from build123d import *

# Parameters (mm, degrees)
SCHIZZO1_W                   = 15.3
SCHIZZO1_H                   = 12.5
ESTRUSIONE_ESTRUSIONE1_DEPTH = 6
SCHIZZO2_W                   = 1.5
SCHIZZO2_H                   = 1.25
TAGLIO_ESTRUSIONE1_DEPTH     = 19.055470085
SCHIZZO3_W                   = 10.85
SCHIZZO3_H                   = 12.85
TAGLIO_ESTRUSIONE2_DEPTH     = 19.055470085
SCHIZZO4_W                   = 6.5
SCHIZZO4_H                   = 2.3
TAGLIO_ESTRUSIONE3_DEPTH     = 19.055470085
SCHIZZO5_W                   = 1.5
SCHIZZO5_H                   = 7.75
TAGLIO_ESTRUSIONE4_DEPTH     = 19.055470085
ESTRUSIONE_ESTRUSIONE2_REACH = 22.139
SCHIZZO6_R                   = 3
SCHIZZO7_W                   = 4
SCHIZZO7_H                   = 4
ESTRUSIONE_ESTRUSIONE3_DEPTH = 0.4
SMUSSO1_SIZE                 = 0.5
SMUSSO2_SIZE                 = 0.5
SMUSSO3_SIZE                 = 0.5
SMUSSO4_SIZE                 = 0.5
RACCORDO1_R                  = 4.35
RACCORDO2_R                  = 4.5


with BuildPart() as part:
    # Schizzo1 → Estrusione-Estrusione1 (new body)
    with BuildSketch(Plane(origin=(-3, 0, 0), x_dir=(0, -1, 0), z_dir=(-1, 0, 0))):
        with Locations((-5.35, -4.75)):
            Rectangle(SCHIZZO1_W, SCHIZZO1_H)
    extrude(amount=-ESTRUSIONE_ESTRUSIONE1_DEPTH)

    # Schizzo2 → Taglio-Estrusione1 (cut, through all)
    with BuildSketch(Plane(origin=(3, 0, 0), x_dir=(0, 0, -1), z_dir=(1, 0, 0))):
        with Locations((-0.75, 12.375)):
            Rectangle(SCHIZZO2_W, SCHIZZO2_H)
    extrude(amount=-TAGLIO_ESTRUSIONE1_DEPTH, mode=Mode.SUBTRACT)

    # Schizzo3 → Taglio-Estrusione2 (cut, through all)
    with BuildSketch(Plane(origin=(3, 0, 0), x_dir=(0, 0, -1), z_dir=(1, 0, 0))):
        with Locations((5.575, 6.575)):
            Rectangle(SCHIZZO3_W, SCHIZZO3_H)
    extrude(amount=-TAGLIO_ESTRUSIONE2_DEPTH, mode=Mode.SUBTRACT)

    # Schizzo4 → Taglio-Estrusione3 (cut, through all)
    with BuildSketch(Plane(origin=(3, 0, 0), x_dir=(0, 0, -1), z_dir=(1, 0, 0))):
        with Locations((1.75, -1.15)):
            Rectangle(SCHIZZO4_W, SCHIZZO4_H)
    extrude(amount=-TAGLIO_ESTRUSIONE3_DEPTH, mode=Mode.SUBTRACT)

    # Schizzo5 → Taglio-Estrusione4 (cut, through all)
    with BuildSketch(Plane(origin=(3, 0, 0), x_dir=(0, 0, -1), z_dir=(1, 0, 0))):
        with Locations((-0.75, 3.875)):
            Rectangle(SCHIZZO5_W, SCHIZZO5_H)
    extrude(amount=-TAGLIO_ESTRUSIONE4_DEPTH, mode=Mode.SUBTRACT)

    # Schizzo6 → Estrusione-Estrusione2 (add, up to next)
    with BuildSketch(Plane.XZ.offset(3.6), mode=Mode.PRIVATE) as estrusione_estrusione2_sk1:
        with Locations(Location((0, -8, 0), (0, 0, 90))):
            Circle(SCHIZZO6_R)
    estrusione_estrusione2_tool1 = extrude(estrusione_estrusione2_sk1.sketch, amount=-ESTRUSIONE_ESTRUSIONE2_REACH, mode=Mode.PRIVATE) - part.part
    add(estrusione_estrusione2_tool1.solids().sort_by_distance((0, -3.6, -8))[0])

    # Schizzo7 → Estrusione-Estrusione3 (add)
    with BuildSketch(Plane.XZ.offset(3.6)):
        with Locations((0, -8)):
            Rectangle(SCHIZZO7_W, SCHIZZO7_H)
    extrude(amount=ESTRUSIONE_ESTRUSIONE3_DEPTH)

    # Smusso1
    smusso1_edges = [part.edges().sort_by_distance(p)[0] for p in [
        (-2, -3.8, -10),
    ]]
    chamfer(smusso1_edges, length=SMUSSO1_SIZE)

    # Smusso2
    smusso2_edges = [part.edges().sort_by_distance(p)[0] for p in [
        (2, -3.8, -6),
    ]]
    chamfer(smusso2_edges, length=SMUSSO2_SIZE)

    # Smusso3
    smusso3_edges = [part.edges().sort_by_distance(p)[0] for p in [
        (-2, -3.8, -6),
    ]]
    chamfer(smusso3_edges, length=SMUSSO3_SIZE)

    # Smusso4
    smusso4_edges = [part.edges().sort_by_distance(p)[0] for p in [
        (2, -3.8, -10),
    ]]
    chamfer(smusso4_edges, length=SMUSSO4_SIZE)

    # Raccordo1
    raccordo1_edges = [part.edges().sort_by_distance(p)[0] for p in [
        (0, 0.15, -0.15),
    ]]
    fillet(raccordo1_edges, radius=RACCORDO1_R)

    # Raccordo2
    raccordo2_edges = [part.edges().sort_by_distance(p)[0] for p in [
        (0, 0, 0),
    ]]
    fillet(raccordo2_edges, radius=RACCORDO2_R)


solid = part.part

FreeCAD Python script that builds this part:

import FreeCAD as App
import Part
import Sketcher

V = App.Vector


def edges_at(feature, points):
    """Names of the edges that pass closest to the given points."""
    edges = feature.Shape.Edges
    near = lambda p: min(range(len(edges)), key=lambda i: edges[i].distToShape(Part.Vertex(*p))[0])
    return sorted({f"Edge{near(p) + 1}" for p in points})


def add_polygon(sketch, points):
    """Adds a closed chain of lines whose ends are joined by coincident constraints."""
    first, n = sketch.GeometryCount, len(points)
    for a, b in zip(points, points[1:] + points[:1]):
        sketch.addGeometry(Part.LineSegment(App.Vector(*a, 0), App.Vector(*b, 0)), False)
    for i in range(n):
        sketch.addConstraint(Sketcher.Constraint("Coincident", first + i, 2, first + (i + 1) % n, 1))

doc = App.newDocument("Part")
params = doc.addObject("Spreadsheet::Sheet", "Params")
for row, (alias, value) in enumerate([
    ("sketch1_width", "15.3 mm"),
    ("sketch1_height", "12.5 mm"),
    ("pad1_length", "6 mm"),
    ("sketch2_height", "1.5 mm"),
    ("sketch2_width", "1.25 mm"),
    ("sketch3_width", "12.85 mm"),
    ("sketch3_height", "10.85 mm"),
    ("sketch4_width", "2.3 mm"),
    ("sketch4_height", "6.5 mm"),
    ("sketch5_height", "1.5 mm"),
    ("sketch5_width", "7.75 mm"),
    ("sketch6_diameter", "6 mm"),
    ("sketch7_width", "4 mm"),
    ("pad3_length", "0.4 mm"),
    ("chamfer_size", "0.5 mm"),
    ("chamfer2_size", "0.5 mm"),
    ("chamfer3_size", "0.5 mm"),
    ("chamfer4_size", "0.5 mm"),
    ("fillet_radius", "4.35 mm"),
    ("fillet2_radius", "4.5 mm"),
], start=1):
    params.set(f"A{row}", alias)
    params.set(f"B{row}", "=" + value)
    params.setAlias(f"B{row}", alias)

body = doc.addObject("PartDesign::Body", "Body")

# Sketch on YZ plane
sketch1 = doc.addObject("Sketcher::SketchObject", "Sketch")
body.addObject(sketch1)
sketch1.AttachmentSupport = (doc.YZ_Plane, [""])
sketch1.MapMode = "FlatFace"
sketch1.AttachmentOffset = App.Placement(V(0, 0, -3), App.Rotation())
add_polygon(sketch1, [(13, 2), (13, -11), (-2, -11), (-2, 2)])  # lines 0-3
sketch1.addConstraint([
    Sketcher.Constraint("Vertical", 0),
    Sketcher.Constraint("Horizontal", 1),
    Sketcher.Constraint("Vertical", 2),
    Sketcher.Constraint("Horizontal", 3),
    Sketcher.Constraint("DistanceX", 1, 2, 1, 1, 15.3),
    Sketcher.Constraint("DistanceY", 0, 2, 0, 1, 12.5),
    Sketcher.Constraint("DistanceX", -1, 1, 0, 2, 13.0),
    Sketcher.Constraint("DistanceY", 0, 2, -1, 1, 11.0),
])
sketch1.setExpression("Constraints[8]", "Params.sketch1_width")
sketch1.setExpression("Constraints[9]", "Params.sketch1_height")
pad1 = doc.addObject("PartDesign::Pad", "Pad")
body.addObject(pad1)
pad1.Profile = sketch1
pad1.setExpression("Length", "Params.pad1_length")

# Sketch on YZ plane
sketch2 = doc.addObject("Sketcher::SketchObject", "Sketch001")
body.addObject(sketch2)
sketch2.AttachmentSupport = (doc.YZ_Plane, [""])
sketch2.MapMode = "FlatFace"
sketch2.AttachmentOffset = App.Placement(V(0, 0, 3), App.Rotation())
add_polygon(sketch2, [(13, 1.5), (11.8, 1.5), (11.8, 0), (13, 0)])  # lines 0-3
sketch2.addConstraint([
    Sketcher.Constraint("Horizontal", 0),
    Sketcher.Constraint("Vertical", 1),
    Sketcher.Constraint("Horizontal", 2),
    Sketcher.Constraint("Vertical", 3),
    Sketcher.Constraint("PointOnObject", 1, 2, -1),
    Sketcher.Constraint("DistanceY", 1, 2, 1, 1, 1.5),
    Sketcher.Constraint("DistanceX", -1, 1, 2, 2, 13.0),
    Sketcher.Constraint("DistanceX", 0, 2, 0, 1, 1.25),
])
sketch2.setExpression("Constraints[9]", "Params.sketch2_height")
sketch2.setExpression("Constraints[11]", "Params.sketch2_width")
pocket1 = doc.addObject("PartDesign::Pocket", "Pocket")
body.addObject(pocket1)
pocket1.Profile = sketch2
pocket1.Type = "ThroughAll"

# Sketch on YZ plane
sketch3 = doc.addObject("Sketcher::SketchObject", "Sketch002")
body.addObject(sketch3)
sketch3.AttachmentSupport = (doc.YZ_Plane, [""])
sketch3.MapMode = "FlatFace"
sketch3.AttachmentOffset = App.Placement(V(0, 0, 3), App.Rotation())
add_polygon(sketch3, [(13, 0), (0, 0), (0, -11), (13, -11)])  # lines 0-3
sketch3.addConstraint([
    Sketcher.Constraint("Horizontal", 0),
    Sketcher.Constraint("Vertical", 1),
    Sketcher.Constraint("Horizontal", 2),
    Sketcher.Constraint("Vertical", 3),
    Sketcher.Constraint("DistanceY", 1, 2, -1, 1, 11.0),
    Sketcher.Constraint("DistanceX", -1, 1, 2, 2, 13.0),
    Sketcher.Constraint("DistanceX", 0, 2, 0, 1, 12.85),
    Sketcher.Constraint("DistanceY", 1, 2, 1, 1, 10.85),
])
sketch3.setExpression("Constraints[10]", "Params.sketch3_width")
sketch3.setExpression("Constraints[11]", "Params.sketch3_height")
pocket2 = doc.addObject("PartDesign::Pocket", "Pocket001")
body.addObject(pocket2)
pocket2.Profile = sketch3
pocket2.Type = "ThroughAll"

# Sketch on YZ plane
sketch4 = doc.addObject("Sketcher::SketchObject", "Sketch003")
body.addObject(sketch4)
sketch4.AttachmentSupport = (doc.YZ_Plane, [""])
sketch4.MapMode = "FlatFace"
sketch4.AttachmentOffset = App.Placement(V(0, 0, 3), App.Rotation())
add_polygon(sketch4, [(0, 1.5), (-2.3, 1.5), (-2.3, -5), (0, -5)])  # lines 0-3
sketch4.addConstraint([
    Sketcher.Constraint("Horizontal", 0),
    Sketcher.Constraint("Vertical", 1),
    Sketcher.Constraint("Horizontal", 2),
    Sketcher.Constraint("Vertical", 3),
    Sketcher.Constraint("PointOnObject", 2, 2, -2),
    Sketcher.Constraint("DistanceX", 0, 2, 0, 1, 2.3),
    Sketcher.Constraint("DistanceY", 1, 2, 1, 1, 6.5),
    Sketcher.Constraint("DistanceY", 1, 2, -1, 1, 5.0),
])
sketch4.setExpression("Constraints[9]", "Params.sketch4_width")
sketch4.setExpression("Constraints[10]", "Params.sketch4_height")
pocket3 = doc.addObject("PartDesign::Pocket", "Pocket002")
body.addObject(pocket3)
pocket3.Profile = sketch4
pocket3.Type = "ThroughAll"

# Sketch on YZ plane
sketch5 = doc.addObject("Sketcher::SketchObject", "Sketch004")
body.addObject(sketch5)
sketch5.AttachmentSupport = (doc.YZ_Plane, [""])
sketch5.MapMode = "FlatFace"
sketch5.AttachmentOffset = App.Placement(V(0, 0, 3), App.Rotation())
add_polygon(sketch5, [(7.8, 1.5), (0, 1.5), (0, 0), (7.8, 0)])  # lines 0-3
sketch5.addConstraint([
    Sketcher.Constraint("Horizontal", 0),
    Sketcher.Constraint("Vertical", 1),
    Sketcher.Constraint("Horizontal", 2),
    Sketcher.Constraint("Vertical", 3),
    Sketcher.Constraint("Coincident", 1, 2, -1, 1),
    Sketcher.Constraint("DistanceY", 1, 2, 1, 1, 1.5),
    Sketcher.Constraint("DistanceX", 0, 2, 0, 1, 7.75),
])
sketch5.setExpression("Constraints[9]", "Params.sketch5_height")
sketch5.setExpression("Constraints[10]", "Params.sketch5_width")
pocket4 = doc.addObject("PartDesign::Pocket", "Pocket003")
body.addObject(pocket4)
pocket4.Profile = sketch5
pocket4.Type = "ThroughAll"

# Sketch on XZ plane
sketch6 = doc.addObject("Sketcher::SketchObject", "Sketch005")
body.addObject(sketch6)
sketch6.AttachmentSupport = (doc.XZ_Plane, [""])
sketch6.MapMode = "FlatFace"
sketch6.AttachmentOffset = App.Placement(V(0, 0, 3.6), App.Rotation())
sketch6.addGeometry(Part.Circle(V(0, -8, 0), V(0, 0, 1), 3), False)
sketch6.addConstraint([
    Sketcher.Constraint("PointOnObject", 0, 3, -2),
    Sketcher.Constraint("Diameter", 0, 6.0),
    Sketcher.Constraint("DistanceY", 0, 3, -1, 1, 8.0),
])
sketch6.setExpression("Constraints[1]", "Params.sketch6_diameter")
pad2 = doc.addObject("PartDesign::Pad", "Pad001")
body.addObject(pad2)
pad2.Profile = sketch6
pad2.Type = "UpToFirst"
pad2.Reversed = True

# Sketch on XZ plane
sketch7 = doc.addObject("Sketcher::SketchObject", "Sketch006")
body.addObject(sketch7)
sketch7.AttachmentSupport = (doc.XZ_Plane, [""])
sketch7.MapMode = "FlatFace"
sketch7.AttachmentOffset = App.Placement(V(0, 0, 3.6), App.Rotation())
add_polygon(sketch7, [(-2, -6), (-2, -10), (2, -10), (2, -6)])  # lines 0-3
sketch7.addConstraint([
    Sketcher.Constraint("Vertical", 0),
    Sketcher.Constraint("Horizontal", 1),
    Sketcher.Constraint("Vertical", 2),
    Sketcher.Constraint("Horizontal", 3),
    Sketcher.Constraint("Equal", 3, 0),
    Sketcher.Constraint("DistanceX", 1, 1, 1, 2, 4.0),
    Sketcher.Constraint("DistanceX", 0, 2, -1, 1, 2.0),
    Sketcher.Constraint("DistanceY", 0, 2, -1, 1, 10.0),
])
sketch7.setExpression("Constraints[9]", "Params.sketch7_width")
pad3 = doc.addObject("PartDesign::Pad", "Pad002")
body.addObject(pad3)
pad3.Profile = sketch7
pad3.setExpression("Length", "Params.pad3_length")
doc.recompute()

chamfer = doc.addObject("PartDesign::Chamfer", "Chamfer")
body.addObject(chamfer)
chamfer.Base = (pad3, edges_at(pad3, [(-2, -3.8, -10)]))
chamfer.setExpression("Size", "Params.chamfer_size")
doc.recompute()

chamfer2 = doc.addObject("PartDesign::Chamfer", "Chamfer001")
body.addObject(chamfer2)
chamfer2.Base = (chamfer, edges_at(chamfer, [(2, -3.8, -6)]))
chamfer2.setExpression("Size", "Params.chamfer2_size")
doc.recompute()

chamfer3 = doc.addObject("PartDesign::Chamfer", "Chamfer002")
body.addObject(chamfer3)
chamfer3.Base = (chamfer2, edges_at(chamfer2, [(-2, -3.8, -6)]))
chamfer3.setExpression("Size", "Params.chamfer3_size")
doc.recompute()

chamfer4 = doc.addObject("PartDesign::Chamfer", "Chamfer003")
body.addObject(chamfer4)
chamfer4.Base = (chamfer3, edges_at(chamfer3, [(2, -3.8, -10)]))
chamfer4.setExpression("Size", "Params.chamfer4_size")
doc.recompute()

fillet = doc.addObject("PartDesign::Fillet", "Fillet")
body.addObject(fillet)
fillet.Base = (chamfer4, edges_at(chamfer4, [(0, 0.15, -0.15)]))
fillet.setExpression("Radius", "Params.fillet_radius")
doc.recompute()

fillet2 = doc.addObject("PartDesign::Fillet", "Fillet001")
body.addObject(fillet2)
fillet2.Base = (fillet, edges_at(fillet, [(0, 0, 0)]))
fillet2.setExpression("Radius", "Params.fillet2_radius")

doc.recompute()
